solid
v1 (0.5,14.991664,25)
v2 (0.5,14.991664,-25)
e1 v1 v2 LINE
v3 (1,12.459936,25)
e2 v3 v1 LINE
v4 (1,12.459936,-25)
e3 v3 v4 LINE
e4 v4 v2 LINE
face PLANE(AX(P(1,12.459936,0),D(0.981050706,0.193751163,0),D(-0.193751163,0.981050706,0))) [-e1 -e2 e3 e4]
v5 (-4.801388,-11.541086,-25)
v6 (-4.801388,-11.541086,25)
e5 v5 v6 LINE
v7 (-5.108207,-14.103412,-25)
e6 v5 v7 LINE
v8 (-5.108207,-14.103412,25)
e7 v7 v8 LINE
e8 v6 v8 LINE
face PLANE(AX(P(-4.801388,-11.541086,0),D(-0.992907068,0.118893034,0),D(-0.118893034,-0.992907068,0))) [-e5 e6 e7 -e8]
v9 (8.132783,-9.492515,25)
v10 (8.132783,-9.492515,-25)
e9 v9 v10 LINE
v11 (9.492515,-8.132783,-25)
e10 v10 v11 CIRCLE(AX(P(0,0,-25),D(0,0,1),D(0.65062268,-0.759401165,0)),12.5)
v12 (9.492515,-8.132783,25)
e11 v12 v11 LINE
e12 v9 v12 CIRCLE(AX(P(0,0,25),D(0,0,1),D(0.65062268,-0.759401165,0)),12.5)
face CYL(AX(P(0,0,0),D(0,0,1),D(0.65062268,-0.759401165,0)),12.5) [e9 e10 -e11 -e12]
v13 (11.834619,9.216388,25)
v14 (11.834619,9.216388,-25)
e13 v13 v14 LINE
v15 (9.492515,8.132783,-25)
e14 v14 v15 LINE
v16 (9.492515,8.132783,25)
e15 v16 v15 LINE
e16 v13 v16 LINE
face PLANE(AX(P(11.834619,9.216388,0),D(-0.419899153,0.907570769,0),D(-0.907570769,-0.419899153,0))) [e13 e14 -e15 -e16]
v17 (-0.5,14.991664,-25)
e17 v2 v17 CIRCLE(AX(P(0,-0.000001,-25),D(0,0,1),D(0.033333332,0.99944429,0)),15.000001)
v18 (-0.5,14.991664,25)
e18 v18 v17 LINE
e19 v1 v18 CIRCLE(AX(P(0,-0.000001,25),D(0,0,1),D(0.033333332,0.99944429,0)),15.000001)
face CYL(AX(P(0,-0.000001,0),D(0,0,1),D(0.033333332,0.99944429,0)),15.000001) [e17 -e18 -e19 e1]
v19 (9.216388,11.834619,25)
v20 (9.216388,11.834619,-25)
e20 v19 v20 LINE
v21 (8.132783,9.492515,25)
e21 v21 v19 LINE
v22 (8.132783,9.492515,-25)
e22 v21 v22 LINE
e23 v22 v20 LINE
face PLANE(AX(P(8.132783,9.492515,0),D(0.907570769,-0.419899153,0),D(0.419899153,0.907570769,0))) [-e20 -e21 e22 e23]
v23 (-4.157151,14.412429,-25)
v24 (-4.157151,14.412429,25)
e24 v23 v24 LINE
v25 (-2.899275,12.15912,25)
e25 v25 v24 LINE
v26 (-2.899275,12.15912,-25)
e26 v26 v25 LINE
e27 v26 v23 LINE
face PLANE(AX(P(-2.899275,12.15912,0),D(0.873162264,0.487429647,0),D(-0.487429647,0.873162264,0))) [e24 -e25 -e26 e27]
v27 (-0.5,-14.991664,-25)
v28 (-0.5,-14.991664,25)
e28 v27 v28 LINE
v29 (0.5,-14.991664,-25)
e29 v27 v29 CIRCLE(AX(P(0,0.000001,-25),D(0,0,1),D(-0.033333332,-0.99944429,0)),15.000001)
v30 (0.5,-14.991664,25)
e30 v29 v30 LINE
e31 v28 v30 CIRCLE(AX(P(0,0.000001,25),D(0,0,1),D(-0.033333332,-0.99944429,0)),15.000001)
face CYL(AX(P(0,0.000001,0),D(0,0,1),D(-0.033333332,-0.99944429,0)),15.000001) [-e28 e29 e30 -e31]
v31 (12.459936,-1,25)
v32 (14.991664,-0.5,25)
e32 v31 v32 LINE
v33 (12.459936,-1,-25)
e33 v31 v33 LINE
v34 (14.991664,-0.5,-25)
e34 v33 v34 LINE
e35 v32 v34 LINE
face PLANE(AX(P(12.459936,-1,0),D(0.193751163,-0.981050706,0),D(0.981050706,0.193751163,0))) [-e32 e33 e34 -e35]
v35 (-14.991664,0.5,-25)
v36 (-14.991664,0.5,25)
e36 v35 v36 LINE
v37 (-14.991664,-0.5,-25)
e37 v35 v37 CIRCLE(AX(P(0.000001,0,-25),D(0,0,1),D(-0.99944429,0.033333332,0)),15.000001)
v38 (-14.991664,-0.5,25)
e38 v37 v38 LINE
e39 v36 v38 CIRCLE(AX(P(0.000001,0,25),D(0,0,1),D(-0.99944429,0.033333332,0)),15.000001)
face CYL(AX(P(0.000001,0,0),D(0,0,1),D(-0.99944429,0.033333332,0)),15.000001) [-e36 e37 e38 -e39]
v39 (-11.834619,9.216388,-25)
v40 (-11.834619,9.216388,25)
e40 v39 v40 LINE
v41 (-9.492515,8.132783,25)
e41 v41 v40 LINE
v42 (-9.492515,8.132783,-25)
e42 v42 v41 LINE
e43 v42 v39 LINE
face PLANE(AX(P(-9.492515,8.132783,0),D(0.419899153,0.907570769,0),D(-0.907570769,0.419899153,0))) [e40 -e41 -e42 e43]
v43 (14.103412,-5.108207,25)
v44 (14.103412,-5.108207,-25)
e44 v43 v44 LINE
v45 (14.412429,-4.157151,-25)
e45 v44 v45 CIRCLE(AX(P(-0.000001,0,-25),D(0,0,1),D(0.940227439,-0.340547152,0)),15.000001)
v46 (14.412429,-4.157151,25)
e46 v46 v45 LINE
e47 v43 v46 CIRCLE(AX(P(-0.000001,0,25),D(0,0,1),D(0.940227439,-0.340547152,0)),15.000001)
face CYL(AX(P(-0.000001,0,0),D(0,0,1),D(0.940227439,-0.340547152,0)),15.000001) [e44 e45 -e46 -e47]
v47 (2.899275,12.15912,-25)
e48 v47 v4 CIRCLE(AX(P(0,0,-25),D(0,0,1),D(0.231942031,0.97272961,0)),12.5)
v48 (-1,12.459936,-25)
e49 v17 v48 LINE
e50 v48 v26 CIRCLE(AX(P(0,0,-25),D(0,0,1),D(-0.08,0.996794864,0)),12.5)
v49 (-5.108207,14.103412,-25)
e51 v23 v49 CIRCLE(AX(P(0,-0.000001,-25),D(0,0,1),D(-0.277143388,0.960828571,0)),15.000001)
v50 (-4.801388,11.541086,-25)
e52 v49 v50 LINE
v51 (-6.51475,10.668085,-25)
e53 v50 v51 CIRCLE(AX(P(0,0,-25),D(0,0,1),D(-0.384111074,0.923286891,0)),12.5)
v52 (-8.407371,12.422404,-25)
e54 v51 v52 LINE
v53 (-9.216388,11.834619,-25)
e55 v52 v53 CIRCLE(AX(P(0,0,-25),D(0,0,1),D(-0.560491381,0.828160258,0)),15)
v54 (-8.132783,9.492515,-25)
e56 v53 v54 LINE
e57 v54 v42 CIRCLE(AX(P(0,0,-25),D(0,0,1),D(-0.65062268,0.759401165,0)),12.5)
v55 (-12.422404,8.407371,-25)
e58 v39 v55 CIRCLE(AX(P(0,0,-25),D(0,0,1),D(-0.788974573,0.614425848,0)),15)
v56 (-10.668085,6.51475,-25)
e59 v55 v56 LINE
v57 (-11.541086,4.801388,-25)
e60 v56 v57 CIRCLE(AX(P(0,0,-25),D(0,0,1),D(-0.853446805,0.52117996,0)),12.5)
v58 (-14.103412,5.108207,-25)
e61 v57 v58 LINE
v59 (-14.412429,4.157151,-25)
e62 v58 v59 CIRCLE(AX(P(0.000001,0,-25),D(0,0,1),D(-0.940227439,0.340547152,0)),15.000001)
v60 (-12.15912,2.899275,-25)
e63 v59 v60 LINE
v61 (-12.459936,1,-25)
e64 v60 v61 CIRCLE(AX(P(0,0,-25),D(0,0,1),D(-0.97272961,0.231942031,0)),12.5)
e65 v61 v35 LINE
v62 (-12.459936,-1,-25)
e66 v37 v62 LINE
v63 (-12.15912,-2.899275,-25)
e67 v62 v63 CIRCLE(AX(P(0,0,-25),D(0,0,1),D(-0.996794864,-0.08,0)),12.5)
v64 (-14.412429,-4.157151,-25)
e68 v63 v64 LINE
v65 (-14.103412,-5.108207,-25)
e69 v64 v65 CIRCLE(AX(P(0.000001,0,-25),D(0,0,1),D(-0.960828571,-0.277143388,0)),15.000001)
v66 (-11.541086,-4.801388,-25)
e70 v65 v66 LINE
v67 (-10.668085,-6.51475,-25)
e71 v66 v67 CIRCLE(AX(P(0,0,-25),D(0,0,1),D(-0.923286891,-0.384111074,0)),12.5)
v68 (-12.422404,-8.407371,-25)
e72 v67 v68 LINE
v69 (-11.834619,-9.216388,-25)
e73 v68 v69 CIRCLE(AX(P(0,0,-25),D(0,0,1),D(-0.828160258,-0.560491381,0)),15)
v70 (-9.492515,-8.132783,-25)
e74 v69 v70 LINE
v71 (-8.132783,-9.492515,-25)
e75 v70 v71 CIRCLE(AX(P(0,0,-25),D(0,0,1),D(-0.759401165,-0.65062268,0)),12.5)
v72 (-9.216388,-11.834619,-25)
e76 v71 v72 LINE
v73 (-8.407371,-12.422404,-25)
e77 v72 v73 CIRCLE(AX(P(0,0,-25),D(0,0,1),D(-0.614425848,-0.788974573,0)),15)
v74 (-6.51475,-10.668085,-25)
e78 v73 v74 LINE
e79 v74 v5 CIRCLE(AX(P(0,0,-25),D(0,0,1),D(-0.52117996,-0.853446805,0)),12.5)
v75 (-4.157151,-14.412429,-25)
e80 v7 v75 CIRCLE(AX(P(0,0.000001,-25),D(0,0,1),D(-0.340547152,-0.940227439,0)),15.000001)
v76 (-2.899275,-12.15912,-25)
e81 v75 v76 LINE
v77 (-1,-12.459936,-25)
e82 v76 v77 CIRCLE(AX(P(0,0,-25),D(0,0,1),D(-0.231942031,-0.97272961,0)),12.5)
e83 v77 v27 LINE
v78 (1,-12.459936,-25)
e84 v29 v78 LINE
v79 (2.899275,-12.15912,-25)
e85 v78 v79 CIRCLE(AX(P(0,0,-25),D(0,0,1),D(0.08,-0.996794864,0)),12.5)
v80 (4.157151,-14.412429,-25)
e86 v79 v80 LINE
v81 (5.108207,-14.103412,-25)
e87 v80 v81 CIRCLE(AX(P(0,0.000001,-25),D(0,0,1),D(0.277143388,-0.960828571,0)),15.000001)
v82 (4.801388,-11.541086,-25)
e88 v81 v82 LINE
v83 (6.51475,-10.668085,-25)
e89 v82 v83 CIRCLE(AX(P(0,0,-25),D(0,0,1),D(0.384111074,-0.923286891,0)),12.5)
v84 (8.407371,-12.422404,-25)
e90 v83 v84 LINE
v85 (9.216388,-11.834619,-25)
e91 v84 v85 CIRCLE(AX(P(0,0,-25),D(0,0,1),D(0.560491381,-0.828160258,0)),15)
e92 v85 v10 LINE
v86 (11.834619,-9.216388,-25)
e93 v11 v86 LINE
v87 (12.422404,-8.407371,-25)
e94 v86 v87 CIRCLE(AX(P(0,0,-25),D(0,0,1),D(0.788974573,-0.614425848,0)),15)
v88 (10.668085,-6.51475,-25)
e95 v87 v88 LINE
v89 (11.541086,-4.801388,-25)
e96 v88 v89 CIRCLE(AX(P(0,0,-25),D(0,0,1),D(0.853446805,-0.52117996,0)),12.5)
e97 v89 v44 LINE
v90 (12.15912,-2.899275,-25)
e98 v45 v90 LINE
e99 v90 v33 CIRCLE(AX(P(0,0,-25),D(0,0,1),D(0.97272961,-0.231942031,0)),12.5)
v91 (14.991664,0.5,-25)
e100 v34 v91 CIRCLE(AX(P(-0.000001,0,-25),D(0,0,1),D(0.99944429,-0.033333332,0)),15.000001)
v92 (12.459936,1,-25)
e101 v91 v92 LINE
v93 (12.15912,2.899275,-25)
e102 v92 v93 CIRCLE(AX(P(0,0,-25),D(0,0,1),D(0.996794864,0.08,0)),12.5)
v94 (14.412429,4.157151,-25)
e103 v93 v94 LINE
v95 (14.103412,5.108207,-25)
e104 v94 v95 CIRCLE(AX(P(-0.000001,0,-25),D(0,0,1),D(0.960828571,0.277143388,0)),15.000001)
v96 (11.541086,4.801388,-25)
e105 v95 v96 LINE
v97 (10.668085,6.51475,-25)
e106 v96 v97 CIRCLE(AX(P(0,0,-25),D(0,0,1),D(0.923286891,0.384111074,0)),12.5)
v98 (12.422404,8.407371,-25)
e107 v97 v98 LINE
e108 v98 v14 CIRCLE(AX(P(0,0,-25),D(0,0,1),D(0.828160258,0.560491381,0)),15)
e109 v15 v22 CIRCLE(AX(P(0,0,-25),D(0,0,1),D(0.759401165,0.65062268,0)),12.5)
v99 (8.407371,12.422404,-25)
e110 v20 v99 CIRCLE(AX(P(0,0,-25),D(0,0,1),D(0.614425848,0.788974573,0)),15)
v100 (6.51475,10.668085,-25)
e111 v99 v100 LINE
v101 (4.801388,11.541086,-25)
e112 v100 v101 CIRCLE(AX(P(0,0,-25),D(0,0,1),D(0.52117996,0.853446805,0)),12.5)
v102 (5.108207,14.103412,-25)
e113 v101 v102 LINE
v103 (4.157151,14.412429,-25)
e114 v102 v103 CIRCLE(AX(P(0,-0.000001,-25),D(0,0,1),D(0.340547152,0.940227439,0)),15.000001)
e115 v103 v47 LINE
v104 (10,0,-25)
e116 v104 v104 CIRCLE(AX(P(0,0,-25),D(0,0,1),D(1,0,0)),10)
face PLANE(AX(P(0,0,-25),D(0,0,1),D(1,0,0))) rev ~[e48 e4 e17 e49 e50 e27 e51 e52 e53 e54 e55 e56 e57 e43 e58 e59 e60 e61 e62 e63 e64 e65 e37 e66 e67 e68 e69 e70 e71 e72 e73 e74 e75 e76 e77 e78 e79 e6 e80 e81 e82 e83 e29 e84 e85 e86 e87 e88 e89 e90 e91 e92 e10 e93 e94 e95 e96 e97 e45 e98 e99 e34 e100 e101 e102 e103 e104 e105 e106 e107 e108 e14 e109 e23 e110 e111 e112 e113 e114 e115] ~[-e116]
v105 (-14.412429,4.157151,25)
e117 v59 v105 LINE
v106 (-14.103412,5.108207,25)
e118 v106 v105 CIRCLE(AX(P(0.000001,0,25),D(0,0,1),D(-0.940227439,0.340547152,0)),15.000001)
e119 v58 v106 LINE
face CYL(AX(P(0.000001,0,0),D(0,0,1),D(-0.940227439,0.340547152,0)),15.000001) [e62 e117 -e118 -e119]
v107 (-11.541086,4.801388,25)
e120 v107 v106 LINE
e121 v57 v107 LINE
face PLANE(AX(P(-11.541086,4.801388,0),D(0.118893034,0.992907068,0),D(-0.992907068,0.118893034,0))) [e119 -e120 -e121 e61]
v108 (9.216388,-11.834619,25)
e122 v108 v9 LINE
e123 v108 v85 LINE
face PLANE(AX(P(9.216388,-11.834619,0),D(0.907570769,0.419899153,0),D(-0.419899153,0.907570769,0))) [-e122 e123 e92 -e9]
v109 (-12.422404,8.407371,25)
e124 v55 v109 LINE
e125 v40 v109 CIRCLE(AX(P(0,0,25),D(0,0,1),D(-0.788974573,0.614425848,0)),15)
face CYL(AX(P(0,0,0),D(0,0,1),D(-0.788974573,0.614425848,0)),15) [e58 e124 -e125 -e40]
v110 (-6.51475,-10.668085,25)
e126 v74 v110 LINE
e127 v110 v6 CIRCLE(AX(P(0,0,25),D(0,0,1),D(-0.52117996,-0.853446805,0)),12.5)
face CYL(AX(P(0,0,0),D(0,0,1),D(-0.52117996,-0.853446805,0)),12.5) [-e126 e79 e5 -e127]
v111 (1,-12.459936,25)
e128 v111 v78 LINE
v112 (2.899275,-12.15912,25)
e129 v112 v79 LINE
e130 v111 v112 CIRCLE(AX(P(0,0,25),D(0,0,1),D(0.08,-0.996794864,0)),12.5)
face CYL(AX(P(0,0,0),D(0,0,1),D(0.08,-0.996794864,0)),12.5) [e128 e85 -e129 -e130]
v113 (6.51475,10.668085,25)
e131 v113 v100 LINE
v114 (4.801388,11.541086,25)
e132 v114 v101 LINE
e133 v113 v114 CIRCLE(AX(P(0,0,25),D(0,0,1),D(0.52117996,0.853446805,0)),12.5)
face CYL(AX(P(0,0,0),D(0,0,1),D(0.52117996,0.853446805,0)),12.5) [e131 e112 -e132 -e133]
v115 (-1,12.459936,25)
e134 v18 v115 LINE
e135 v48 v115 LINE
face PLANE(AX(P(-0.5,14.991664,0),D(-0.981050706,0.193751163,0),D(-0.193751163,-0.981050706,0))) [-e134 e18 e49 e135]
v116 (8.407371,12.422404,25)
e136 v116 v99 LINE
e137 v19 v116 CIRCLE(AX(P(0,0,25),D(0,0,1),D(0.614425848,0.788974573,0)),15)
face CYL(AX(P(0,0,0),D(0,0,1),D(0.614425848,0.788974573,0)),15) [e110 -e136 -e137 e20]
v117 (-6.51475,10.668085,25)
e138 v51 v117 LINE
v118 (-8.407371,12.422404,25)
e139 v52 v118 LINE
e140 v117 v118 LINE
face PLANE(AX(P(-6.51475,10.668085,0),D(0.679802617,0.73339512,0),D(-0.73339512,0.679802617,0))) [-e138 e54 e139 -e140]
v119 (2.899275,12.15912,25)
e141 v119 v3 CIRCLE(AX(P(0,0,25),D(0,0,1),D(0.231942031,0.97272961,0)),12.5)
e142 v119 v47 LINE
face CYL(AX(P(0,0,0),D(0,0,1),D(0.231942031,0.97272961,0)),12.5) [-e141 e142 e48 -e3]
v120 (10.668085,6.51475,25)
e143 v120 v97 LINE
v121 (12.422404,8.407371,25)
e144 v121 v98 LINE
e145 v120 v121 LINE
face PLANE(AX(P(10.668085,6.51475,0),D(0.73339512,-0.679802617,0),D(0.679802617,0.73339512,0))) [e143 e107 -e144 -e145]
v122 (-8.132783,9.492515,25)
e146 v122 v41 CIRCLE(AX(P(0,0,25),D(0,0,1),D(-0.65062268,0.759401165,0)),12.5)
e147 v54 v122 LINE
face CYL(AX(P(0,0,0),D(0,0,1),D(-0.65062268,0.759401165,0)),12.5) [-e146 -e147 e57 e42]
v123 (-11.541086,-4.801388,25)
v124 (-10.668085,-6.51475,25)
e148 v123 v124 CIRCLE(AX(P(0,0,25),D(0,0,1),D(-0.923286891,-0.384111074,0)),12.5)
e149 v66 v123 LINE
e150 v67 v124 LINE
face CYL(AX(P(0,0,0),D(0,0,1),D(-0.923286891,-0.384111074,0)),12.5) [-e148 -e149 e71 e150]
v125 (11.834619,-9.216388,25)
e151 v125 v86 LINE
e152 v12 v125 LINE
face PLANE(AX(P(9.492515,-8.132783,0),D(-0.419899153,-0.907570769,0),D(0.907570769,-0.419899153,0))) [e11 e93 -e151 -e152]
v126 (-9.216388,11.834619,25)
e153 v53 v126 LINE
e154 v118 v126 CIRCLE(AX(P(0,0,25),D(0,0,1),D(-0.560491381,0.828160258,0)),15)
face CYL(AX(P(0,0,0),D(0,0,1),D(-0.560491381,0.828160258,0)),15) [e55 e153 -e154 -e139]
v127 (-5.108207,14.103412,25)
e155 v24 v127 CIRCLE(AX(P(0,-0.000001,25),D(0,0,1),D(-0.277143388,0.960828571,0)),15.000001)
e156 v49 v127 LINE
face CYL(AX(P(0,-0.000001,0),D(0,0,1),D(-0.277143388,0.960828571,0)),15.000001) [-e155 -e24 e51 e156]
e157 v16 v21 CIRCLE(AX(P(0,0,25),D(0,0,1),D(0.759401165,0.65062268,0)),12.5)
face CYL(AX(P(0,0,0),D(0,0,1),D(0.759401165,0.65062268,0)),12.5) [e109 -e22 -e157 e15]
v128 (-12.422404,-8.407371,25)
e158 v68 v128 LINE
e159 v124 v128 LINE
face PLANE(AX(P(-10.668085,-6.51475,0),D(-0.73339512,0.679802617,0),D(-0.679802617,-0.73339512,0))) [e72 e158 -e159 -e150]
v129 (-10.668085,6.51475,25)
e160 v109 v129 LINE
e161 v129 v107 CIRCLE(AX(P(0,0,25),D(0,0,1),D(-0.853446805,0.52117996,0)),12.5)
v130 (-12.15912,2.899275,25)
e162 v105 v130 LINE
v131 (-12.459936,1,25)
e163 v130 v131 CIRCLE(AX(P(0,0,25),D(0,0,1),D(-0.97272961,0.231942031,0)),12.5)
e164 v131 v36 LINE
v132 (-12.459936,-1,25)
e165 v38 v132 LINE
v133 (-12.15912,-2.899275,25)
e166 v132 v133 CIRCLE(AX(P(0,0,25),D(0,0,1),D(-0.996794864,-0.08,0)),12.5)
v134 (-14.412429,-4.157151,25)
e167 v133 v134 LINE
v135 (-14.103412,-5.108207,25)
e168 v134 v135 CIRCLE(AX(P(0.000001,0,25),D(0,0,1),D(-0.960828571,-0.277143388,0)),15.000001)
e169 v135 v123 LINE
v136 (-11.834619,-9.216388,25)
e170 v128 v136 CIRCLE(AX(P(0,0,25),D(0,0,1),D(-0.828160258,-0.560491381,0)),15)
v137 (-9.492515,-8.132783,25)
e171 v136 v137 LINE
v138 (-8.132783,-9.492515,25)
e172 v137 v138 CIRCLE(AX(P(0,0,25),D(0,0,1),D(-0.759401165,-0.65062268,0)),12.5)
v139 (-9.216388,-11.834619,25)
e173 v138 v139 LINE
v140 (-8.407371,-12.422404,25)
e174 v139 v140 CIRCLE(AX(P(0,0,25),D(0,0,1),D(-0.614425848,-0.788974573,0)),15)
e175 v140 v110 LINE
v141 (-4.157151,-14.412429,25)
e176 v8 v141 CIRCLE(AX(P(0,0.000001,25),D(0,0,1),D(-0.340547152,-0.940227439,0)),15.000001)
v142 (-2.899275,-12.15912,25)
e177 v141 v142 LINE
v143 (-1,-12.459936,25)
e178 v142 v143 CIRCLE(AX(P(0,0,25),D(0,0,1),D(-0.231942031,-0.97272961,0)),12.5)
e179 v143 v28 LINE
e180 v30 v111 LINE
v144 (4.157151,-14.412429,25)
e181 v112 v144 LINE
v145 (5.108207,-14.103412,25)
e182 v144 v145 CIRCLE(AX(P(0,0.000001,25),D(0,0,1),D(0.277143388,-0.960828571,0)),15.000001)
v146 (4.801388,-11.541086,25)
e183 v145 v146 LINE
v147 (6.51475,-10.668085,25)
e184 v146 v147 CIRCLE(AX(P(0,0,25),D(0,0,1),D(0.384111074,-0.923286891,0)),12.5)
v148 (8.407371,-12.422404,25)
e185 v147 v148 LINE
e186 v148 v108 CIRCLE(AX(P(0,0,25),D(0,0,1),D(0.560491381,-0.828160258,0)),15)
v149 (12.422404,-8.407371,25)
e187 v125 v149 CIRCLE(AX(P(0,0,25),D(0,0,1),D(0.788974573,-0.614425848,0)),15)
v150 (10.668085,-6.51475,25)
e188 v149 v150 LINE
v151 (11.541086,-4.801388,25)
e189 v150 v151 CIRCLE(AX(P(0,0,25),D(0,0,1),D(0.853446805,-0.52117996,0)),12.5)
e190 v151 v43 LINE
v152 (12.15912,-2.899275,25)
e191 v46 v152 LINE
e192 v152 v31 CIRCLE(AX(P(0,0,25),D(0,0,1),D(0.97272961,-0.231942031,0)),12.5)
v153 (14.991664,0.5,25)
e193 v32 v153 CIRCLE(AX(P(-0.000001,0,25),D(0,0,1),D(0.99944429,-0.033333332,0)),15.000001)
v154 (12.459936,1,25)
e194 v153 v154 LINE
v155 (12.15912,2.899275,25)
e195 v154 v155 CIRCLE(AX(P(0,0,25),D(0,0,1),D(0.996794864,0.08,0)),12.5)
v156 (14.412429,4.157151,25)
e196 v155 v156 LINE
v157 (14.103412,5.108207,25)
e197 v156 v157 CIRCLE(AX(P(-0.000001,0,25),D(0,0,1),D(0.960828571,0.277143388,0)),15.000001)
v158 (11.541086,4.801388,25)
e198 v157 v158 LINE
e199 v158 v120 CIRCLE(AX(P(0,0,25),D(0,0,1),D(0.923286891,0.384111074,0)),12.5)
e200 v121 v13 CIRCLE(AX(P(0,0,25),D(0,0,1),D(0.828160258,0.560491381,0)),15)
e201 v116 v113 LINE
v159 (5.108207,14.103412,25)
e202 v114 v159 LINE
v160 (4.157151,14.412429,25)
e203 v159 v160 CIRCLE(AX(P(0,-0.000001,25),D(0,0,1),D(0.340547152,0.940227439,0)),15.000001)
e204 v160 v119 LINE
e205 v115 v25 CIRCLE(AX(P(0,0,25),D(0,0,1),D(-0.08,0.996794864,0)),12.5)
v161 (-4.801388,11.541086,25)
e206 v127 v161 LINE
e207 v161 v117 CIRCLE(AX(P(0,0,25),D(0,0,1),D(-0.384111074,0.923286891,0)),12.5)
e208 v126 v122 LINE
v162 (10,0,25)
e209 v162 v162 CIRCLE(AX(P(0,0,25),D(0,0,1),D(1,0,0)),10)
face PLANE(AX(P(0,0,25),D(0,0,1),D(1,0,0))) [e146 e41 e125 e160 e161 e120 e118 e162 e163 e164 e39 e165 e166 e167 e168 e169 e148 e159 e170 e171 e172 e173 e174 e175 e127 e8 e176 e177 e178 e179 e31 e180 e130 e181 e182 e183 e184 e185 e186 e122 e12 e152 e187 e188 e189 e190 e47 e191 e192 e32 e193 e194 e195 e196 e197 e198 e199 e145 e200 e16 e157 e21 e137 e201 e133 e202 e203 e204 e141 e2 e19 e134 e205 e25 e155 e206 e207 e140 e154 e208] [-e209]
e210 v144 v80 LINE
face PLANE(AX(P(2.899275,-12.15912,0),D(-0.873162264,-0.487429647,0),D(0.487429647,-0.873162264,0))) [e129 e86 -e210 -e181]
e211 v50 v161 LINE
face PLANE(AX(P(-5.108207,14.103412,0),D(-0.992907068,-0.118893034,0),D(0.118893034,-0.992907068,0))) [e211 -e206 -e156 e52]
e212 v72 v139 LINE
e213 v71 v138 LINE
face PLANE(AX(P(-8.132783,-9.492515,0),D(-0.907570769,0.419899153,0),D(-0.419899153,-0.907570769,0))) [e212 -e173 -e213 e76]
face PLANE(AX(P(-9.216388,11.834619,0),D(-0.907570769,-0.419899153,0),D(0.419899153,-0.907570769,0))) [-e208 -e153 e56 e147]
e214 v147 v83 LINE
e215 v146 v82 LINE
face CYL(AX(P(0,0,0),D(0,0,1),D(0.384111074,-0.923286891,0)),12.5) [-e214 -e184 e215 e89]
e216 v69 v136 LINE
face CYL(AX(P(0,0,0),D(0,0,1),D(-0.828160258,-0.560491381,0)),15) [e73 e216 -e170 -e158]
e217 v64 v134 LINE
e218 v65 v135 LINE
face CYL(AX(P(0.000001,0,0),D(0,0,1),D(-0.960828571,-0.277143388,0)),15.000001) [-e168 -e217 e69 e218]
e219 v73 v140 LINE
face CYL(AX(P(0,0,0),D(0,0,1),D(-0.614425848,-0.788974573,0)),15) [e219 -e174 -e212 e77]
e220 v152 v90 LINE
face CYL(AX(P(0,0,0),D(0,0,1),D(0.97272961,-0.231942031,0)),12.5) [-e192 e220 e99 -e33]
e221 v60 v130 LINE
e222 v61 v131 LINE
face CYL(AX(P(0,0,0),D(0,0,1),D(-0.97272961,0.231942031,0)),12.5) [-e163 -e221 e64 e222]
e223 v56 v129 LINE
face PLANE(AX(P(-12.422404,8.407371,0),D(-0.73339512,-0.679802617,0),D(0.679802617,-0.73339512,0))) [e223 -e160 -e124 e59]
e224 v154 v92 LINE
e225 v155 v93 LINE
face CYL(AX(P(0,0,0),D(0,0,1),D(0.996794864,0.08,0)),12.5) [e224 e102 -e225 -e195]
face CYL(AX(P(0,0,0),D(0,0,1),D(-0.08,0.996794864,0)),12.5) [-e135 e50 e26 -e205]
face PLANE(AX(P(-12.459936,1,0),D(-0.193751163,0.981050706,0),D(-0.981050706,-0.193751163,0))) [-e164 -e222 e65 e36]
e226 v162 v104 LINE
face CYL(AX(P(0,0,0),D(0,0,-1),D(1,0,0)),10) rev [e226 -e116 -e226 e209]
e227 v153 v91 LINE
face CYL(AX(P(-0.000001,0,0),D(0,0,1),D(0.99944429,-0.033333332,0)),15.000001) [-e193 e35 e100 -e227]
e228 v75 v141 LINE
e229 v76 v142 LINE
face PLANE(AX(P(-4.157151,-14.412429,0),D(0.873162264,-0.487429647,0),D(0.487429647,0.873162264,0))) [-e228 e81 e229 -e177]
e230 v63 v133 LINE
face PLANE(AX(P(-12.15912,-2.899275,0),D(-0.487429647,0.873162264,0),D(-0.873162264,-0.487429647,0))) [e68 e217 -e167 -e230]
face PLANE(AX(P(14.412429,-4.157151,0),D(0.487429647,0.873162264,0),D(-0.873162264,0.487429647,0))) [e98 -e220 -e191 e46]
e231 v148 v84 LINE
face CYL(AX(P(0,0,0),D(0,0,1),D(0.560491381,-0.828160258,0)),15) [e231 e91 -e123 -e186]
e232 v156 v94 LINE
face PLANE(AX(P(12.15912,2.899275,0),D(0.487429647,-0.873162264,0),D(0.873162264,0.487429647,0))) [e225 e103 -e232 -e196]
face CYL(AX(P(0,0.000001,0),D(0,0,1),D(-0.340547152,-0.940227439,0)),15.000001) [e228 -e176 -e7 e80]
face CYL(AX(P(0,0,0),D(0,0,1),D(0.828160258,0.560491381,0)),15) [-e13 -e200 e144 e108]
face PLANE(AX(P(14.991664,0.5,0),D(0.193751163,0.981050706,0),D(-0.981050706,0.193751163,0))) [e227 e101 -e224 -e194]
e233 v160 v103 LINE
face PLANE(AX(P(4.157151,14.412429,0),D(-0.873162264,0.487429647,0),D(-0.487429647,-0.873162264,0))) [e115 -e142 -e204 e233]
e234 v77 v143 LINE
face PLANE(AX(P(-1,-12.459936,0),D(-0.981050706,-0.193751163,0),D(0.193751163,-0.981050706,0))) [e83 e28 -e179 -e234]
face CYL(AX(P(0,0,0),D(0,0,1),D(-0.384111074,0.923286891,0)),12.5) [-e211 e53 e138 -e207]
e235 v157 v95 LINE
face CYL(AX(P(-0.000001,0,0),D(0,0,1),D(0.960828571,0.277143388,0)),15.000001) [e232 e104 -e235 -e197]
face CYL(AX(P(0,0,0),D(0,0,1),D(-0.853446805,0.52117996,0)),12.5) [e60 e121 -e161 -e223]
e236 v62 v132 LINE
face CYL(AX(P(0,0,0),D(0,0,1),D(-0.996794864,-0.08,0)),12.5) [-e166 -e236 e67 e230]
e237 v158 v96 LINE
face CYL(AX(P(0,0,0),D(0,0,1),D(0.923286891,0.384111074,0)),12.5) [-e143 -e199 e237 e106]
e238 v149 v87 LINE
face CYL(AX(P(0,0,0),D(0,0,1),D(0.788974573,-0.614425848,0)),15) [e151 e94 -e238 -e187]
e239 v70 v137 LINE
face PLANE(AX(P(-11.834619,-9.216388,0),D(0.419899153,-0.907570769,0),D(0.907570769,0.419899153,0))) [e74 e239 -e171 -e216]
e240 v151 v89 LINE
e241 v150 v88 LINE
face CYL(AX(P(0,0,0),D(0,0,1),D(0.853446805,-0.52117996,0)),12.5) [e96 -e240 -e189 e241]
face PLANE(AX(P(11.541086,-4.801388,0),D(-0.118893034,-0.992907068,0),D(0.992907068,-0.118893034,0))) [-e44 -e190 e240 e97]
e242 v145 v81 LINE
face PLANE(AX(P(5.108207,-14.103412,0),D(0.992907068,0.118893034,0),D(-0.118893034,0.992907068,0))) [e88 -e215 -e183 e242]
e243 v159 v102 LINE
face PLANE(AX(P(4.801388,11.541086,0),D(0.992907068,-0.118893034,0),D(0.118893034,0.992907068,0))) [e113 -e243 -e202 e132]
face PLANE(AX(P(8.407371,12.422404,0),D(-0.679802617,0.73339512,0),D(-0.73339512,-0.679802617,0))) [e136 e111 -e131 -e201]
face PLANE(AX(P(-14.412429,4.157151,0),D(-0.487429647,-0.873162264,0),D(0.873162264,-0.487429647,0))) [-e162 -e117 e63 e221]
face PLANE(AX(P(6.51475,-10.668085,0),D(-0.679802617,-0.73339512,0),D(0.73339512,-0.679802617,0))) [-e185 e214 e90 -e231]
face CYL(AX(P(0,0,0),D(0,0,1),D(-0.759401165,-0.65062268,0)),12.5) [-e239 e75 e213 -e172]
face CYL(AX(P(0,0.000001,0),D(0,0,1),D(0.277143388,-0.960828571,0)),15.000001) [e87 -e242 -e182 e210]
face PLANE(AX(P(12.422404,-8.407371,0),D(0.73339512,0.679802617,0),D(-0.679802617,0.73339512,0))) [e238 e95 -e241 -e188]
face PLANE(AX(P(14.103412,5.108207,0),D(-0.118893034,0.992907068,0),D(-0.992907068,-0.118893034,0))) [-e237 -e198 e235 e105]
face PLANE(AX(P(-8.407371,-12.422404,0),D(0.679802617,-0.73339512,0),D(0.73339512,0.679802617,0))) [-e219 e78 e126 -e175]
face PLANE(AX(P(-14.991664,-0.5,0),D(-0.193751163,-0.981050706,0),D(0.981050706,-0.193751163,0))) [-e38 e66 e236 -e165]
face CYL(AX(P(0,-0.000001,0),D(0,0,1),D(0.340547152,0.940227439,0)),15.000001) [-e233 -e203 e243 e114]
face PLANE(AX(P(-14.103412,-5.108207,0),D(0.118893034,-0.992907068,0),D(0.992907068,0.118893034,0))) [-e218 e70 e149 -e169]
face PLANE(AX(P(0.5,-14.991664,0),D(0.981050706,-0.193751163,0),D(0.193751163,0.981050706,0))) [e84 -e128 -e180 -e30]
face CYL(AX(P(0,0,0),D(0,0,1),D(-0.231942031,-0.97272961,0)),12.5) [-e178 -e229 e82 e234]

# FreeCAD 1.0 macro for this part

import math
import FreeCAD as App
import Part
import Sketcher
from FreeCAD import Vector

doc = App.newDocument("Part")
params = doc.addObject("Spreadsheet::Sheet", "Params")
for row, (alias, value) in enumerate([
    ("sketch1_diameter", "20 mm"),
    ("sketch1_radius", "15.000001 mm"),
    ("sketch1_radius2", "12.5 mm"),
    ("pad1_length", "50 mm"),
], start=1):
    params.set(f"A{row}", alias)
    params.set(f"B{row}", "=" + value)
    params.setAlias(f"B{row}", alias)

body = doc.addObject("PartDesign::Body", "Body")

sketch1 = doc.addObject("Sketcher::SketchObject", "Sketch")
body.addObject(sketch1)
sketch1.AttachmentSupport = (doc.XY_Plane, [""])
sketch1.MapMode = "FlatFace"
sketch1.addGeometry([
    Part.LineSegment(Vector(-0.5, 15, 0), Vector(-1, 12.5, 0)),
    Part.ArcOfCircle(Part.Circle(Vector(0, 0, 0), Vector(0, 0, 1), 12.5), math.radians(94.59), math.radians(103.41)),
    Part.LineSegment(Vector(-2.9, 12.2, 0), Vector(-4.2, 14.4, 0)),
    Part.ArcOfCircle(Part.Circle(Vector(0, 0, 0), Vector(0, 0, 1), 15), math.radians(106.09), math.radians(109.91)),
    Part.LineSegment(Vector(-5.1, 14.1, 0), Vector(-4.8, 11.5, 0)),
    Part.ArcOfCircle(Part.Circle(Vector(0, 0, 0), Vector(0, 0, 1), 12.5), math.radians(112.59), math.radians(121.41)),
    Part.LineSegment(Vector(-6.5, 10.7, 0), Vector(-8.4, 12.4, 0)),
    Part.ArcOfCircle(Part.Circle(Vector(0, 0, 0), Vector(0, 0, 1), 15), math.radians(124.09), math.radians(127.91)),
    Part.LineSegment(Vector(-9.2, 11.8, 0), Vector(-8.1, 9.5, 0)),
    Part.ArcOfCircle(Part.Circle(Vector(0, 0, 0), Vector(0, 0, 1), 12.5), math.radians(130.59), math.radians(139.41)),
    Part.LineSegment(Vector(-9.5, 8.1, 0), Vector(-11.8, 9.2, 0)),
    Part.ArcOfCircle(Part.Circle(Vector(0, 0, 0), Vector(0, 0, 1), 15), math.radians(142.09), math.radians(145.91)),
    Part.LineSegment(Vector(-12.4, 8.4, 0), Vector(-10.7, 6.5, 0)),
    Part.ArcOfCircle(Part.Circle(Vector(0, 0, 0), Vector(0, 0, 1), 12.5), math.radians(148.59), math.radians(157.41)),
    Part.LineSegment(Vector(-11.5, 4.8, 0), Vector(-14.1, 5.1, 0)),
    Part.ArcOfCircle(Part.Circle(Vector(0, 0, 0), Vector(0, 0, 1), 15), math.radians(160.09), math.radians(163.91)),
    Part.LineSegment(Vector(-14.4, 4.2, 0), Vector(-12.2, 2.9, 0)),
    Part.ArcOfCircle(Part.Circle(Vector(0, 0, 0), Vector(0, 0, 1), 12.5), math.radians(166.59), math.radians(175.41)),
    Part.LineSegment(Vector(-12.5, 1, 0), Vector(-15, 0.5, 0)),
    Part.ArcOfCircle(Part.Circle(Vector(0, 0, 0), Vector(0, 0, 1), 15), math.radians(178.09), math.radians(181.91)),
    Part.LineSegment(Vector(-15, -0.5, 0), Vector(-12.5, -1, 0)),
    Part.ArcOfCircle(Part.Circle(Vector(0, 0, 0), Vector(0, 0, 1), 12.5), math.radians(-175.41), math.radians(-166.59)),
    Part.LineSegment(Vector(-12.2, -2.9, 0), Vector(-14.4, -4.2, 0)),
    Part.ArcOfCircle(Part.Circle(Vector(0, 0, 0), Vector(0, 0, 1), 15), math.radians(-163.91), math.radians(-160.09)),
    Part.LineSegment(Vector(-14.1, -5.1, 0), Vector(-11.5, -4.8, 0)),
    Part.ArcOfCircle(Part.Circle(Vector(0, 0, 0), Vector(0, 0, 1), 12.5), math.radians(-157.41), math.radians(-148.59)),
    Part.LineSegment(Vector(-10.7, -6.5, 0), Vector(-12.4, -8.4, 0)),
    Part.ArcOfCircle(Part.Circle(Vector(0, 0, 0), Vector(0, 0, 1), 15), math.radians(-145.91), math.radians(-142.09)),
    Part.LineSegment(Vector(-11.8, -9.2, 0), Vector(-9.5, -8.1, 0)),
    Part.ArcOfCircle(Part.Circle(Vector(0, 0, 0), Vector(0, 0, 1), 12.5), math.radians(-139.41), math.radians(-130.59)),
    Part.LineSegment(Vector(-8.1, -9.5, 0), Vector(-9.2, -11.8, 0)),
    Part.ArcOfCircle(Part.Circle(Vector(0, 0, 0), Vector(0, 0, 1), 15), math.radians(-127.91), math.radians(-124.09)),
    Part.LineSegment(Vector(-8.4, -12.4, 0), Vector(-6.5, -10.7, 0)),
    Part.ArcOfCircle(Part.Circle(Vector(0, 0, 0), Vector(0, 0, 1), 12.5), math.radians(-121.41), math.radians(-112.59)),
    Part.LineSegment(Vector(-4.8, -11.5, 0), Vector(-5.1, -14.1, 0)),
    Part.ArcOfCircle(Part.Circle(Vector(0, 0, 0), Vector(0, 0, 1), 15), math.radians(-109.91), math.radians(-106.09)),
    Part.LineSegment(Vector(-4.2, -14.4, 0), Vector(-2.9, -12.2, 0)),
    Part.ArcOfCircle(Part.Circle(Vector(0, 0, 0), Vector(0, 0, 1), 12.5), math.radians(-103.41), math.radians(-94.59)),
    Part.LineSegment(Vector(-1, -12.5, 0), Vector(-0.5, -15, 0)),
    Part.ArcOfCircle(Part.Circle(Vector(0, 0, 0), Vector(0, 0, 1), 15), math.radians(-91.91), math.radians(-88.09)),
    Part.LineSegment(Vector(0.5, -15, 0), Vector(1, -12.5, 0)),
    Part.ArcOfCircle(Part.Circle(Vector(0, 0, 0), Vector(0, 0, 1), 12.5), math.radians(-85.41), math.radians(-76.59)),
    Part.LineSegment(Vector(2.9, -12.2, 0), Vector(4.2, -14.4, 0)),
    Part.ArcOfCircle(Part.Circle(Vector(0, 0, 0), Vector(0, 0, 1), 15), math.radians(-73.91), math.radians(-70.09)),
    Part.LineSegment(Vector(5.1, -14.1, 0), Vector(4.8, -11.5, 0)),
    Part.ArcOfCircle(Part.Circle(Vector(0, 0, 0), Vector(0, 0, 1), 12.5), math.radians(-67.41), math.radians(-58.59)),
    Part.LineSegment(Vector(6.5, -10.7, 0), Vector(8.4, -12.4, 0)),
    Part.ArcOfCircle(Part.Circle(Vector(0, 0, 0), Vector(0, 0, 1), 15), math.radians(-55.91), math.radians(-52.09)),
    Part.LineSegment(Vector(9.2, -11.8, 0), Vector(8.1, -9.5, 0)),
    Part.ArcOfCircle(Part.Circle(Vector(0, 0, 0), Vector(0, 0, 1), 12.5), math.radians(-49.41), math.radians(-40.59)),
    Part.LineSegment(Vector(9.5, -8.1, 0), Vector(11.8, -9.2, 0)),
    Part.ArcOfCircle(Part.Circle(Vector(0, 0, 0), Vector(0, 0, 1), 15), math.radians(-37.91), math.radians(-34.09)),
    Part.LineSegment(Vector(12.4, -8.4, 0), Vector(10.7, -6.5, 0)),
    Part.ArcOfCircle(Part.Circle(Vector(0, 0, 0), Vector(0, 0, 1), 12.5), math.radians(-31.41), math.radians(-22.59)),
    Part.LineSegment(Vector(11.5, -4.8, 0), Vector(14.1, -5.1, 0)),
    Part.ArcOfCircle(Part.Circle(Vector(0, 0, 0), Vector(0, 0, 1), 15), math.radians(-19.91), math.radians(-16.09)),
    Part.LineSegment(Vector(14.4, -4.2, 0), Vector(12.2, -2.9, 0)),
    Part.ArcOfCircle(Part.Circle(Vector(0, 0, 0), Vector(0, 0, 1), 12.5), math.radians(-13.41), math.radians(-4.59)),
    Part.LineSegment(Vector(12.5, -1, 0), Vector(15, -0.5, 0)),
    Part.ArcOfCircle(Part.Circle(Vector(0, 0, 0), Vector(0, 0, 1), 15), math.radians(-1.91), math.radians(1.91)),
    Part.LineSegment(Vector(15, 0.5, 0), Vector(12.5, 1, 0)),
    Part.ArcOfCircle(Part.Circle(Vector(0, 0, 0), Vector(0, 0, 1), 12.5), math.radians(4.59), math.radians(13.41)),
    Part.LineSegment(Vector(12.2, 2.9, 0), Vector(14.4, 4.2, 0)),
    Part.ArcOfCircle(Part.Circle(Vector(0, 0, 0), Vector(0, 0, 1), 15), math.radians(16.09), math.radians(19.91)),
    Part.LineSegment(Vector(14.1, 5.1, 0), Vector(11.5, 4.8, 0)),
    Part.ArcOfCircle(Part.Circle(Vector(0, 0, 0), Vector(0, 0, 1), 12.5), math.radians(22.59), math.radians(31.41)),
    Part.LineSegment(Vector(10.7, 6.5, 0), Vector(12.4, 8.4, 0)),
    Part.ArcOfCircle(Part.Circle(Vector(0, 0, 0), Vector(0, 0, 1), 15), math.radians(34.09), math.radians(37.91)),
    Part.LineSegment(Vector(11.8, 9.2, 0), Vector(9.5, 8.1, 0)),
    Part.ArcOfCircle(Part.Circle(Vector(0, 0, 0), Vector(0, 0, 1), 12.5), math.radians(40.59), math.radians(49.41)),
    Part.LineSegment(Vector(8.1, 9.5, 0), Vector(9.2, 11.8, 0)),
    Part.ArcOfCircle(Part.Circle(Vector(0, 0, 0), Vector(0, 0, 1), 15), math.radians(52.09), math.radians(55.91)),
    Part.LineSegment(Vector(8.4, 12.4, 0), Vector(6.5, 10.7, 0)),
    Part.ArcOfCircle(Part.Circle(Vector(0, 0, 0), Vector(0, 0, 1), 12.5), math.radians(58.59), math.radians(67.41)),
    Part.LineSegment(Vector(4.8, 11.5, 0), Vector(5.1, 14.1, 0)),
    Part.ArcOfCircle(Part.Circle(Vector(0, 0, 0), Vector(0, 0, 1), 15), math.radians(70.09), math.radians(73.91)),
    Part.LineSegment(Vector(4.2, 14.4, 0), Vector(2.9, 12.2, 0)),
    Part.ArcOfCircle(Part.Circle(Vector(0, 0, 0), Vector(0, 0, 1), 12.5), math.radians(76.59), math.radians(85.41)),
    Part.LineSegment(Vector(1, 12.5, 0), Vector(0.5, 15, 0)),
    Part.ArcOfCircle(Part.Circle(Vector(0, 0, 0), Vector(0, 0, 1), 15), math.radians(88.09), math.radians(91.91)),
    Part.Circle(Vector(0, 0, 0), Vector(0, 0, 1), 10),
], False)
sketch1.addConstraint([
    Sketcher.Constraint("Coincident", 0, 2, 1, 1),
    Sketcher.Constraint("Coincident", 1, 2, 2, 1),
    Sketcher.Constraint("Coincident", 2, 2, 3, 1),
    Sketcher.Constraint("Coincident", 3, 2, 4, 1),
    Sketcher.Constraint("Coincident", 4, 2, 5, 1),
    Sketcher.Constraint("Coincident", 5, 2, 6, 1),
    Sketcher.Constraint("Coincident", 6, 2, 7, 1),
    Sketcher.Constraint("Coincident", 7, 2, 8, 1),
    Sketcher.Constraint("Coincident", 8, 2, 9, 1),
    Sketcher.Constraint("Coincident", 9, 2, 10, 1),
    Sketcher.Constraint("Coincident", 10, 2, 11, 1),
    Sketcher.Constraint("Coincident", 11, 2, 12, 1),
    Sketcher.Constraint("Coincident", 12, 2, 13, 1),
    Sketcher.Constraint("Coincident", 13, 2, 14, 1),
    Sketcher.Constraint("Coincident", 14, 2, 15, 1),
    Sketcher.Constraint("Coincident", 15, 2, 16, 1),
    Sketcher.Constraint("Coincident", 16, 2, 17, 1),
    Sketcher.Constraint("Coincident", 17, 2, 18, 1),
    Sketcher.Constraint("Coincident", 18, 2, 19, 1),
    Sketcher.Constraint("Coincident", 19, 2, 20, 1),
    Sketcher.Constraint("Coincident", 20, 2, 21, 1),
    Sketcher.Constraint("Coincident", 21, 2, 22, 1),
    Sketcher.Constraint("Coincident", 22, 2, 23, 1),
    Sketcher.Constraint("Coincident", 23, 2, 24, 1),
    Sketcher.Constraint("Coincident", 24, 2, 25, 1),
    Sketcher.Constraint("Coincident", 25, 2, 26, 1),
    Sketcher.Constraint("Coincident", 26, 2, 27, 1),
    Sketcher.Constraint("Coincident", 27, 2, 28, 1),
    Sketcher.Constraint("Coincident", 28, 2, 29, 1),
    Sketcher.Constraint("Coincident", 29, 2, 30, 1),
    Sketcher.Constraint("Coincident", 30, 2, 31, 1),
    Sketcher.Constraint("Coincident", 31, 2, 32, 1),
    Sketcher.Constraint("Coincident", 32, 2, 33, 1),
    Sketcher.Constraint("Coincident", 33, 2, 34, 1),
    Sketcher.Constraint("Coincident", 34, 2, 35, 1),
    Sketcher.Constraint("Coincident", 35, 2, 36, 1),
    Sketcher.Constraint("Coincident", 36, 2, 37, 1),
    Sketcher.Constraint("Coincident", 37, 2, 38, 1),
    Sketcher.Constraint("Coincident", 38, 2, 39, 1),
    Sketcher.Constraint("Coincident", 39, 2, 40, 1),
    Sketcher.Constraint("Coincident", 40, 2, 41, 1),
    Sketcher.Constraint("Coincident", 41, 2, 42, 1),
    Sketcher.Constraint("Coincident", 42, 2, 43, 1),
    Sketcher.Constraint("Coincident", 43, 2, 44, 1),
    Sketcher.Constraint("Coincident", 44, 2, 45, 1),
    Sketcher.Constraint("Coincident", 45, 2, 46, 1),
    Sketcher.Constraint("Coincident", 46, 2, 47, 1),
    Sketcher.Constraint("Coincident", 47, 2, 48, 1),
    Sketcher.Constraint("Coincident", 48, 2, 49, 1),
    Sketcher.Constraint("Coincident", 49, 2, 50, 1),
    Sketcher.Constraint("Coincident", 50, 2, 51, 1),
    Sketcher.Constraint("Coincident", 51, 2, 52, 1),
    Sketcher.Constraint("Coincident", 52, 2, 53, 1),
    Sketcher.Constraint("Coincident", 53, 2, 54, 1),
    Sketcher.Constraint("Coincident", 54, 2, 55, 1),
    Sketcher.Constraint("Coincident", 55, 2, 56, 1),
    Sketcher.Constraint("Coincident", 56, 2, 57, 1),
    Sketcher.Constraint("Coincident", 57, 2, 58, 1),
    Sketcher.Constraint("Coincident", 58, 2, 59, 1),
    Sketcher.Constraint("Coincident", 59, 2, 60, 1),
    Sketcher.Constraint("Coincident", 60, 2, 61, 1),
    Sketcher.Constraint("Coincident", 61, 2, 62, 1),
    Sketcher.Constraint("Coincident", 62, 2, 63, 1),
    Sketcher.Constraint("Coincident", 63, 2, 64, 1),
    Sketcher.Constraint("Coincident", 64, 2, 65, 1),
    Sketcher.Constraint("Coincident", 65, 2, 66, 1),
    Sketcher.Constraint("Coincident", 66, 2, 67, 1),
    Sketcher.Constraint("Coincident", 67, 2, 68, 1),
    Sketcher.Constraint("Coincident", 68, 2, 69, 1),
    Sketcher.Constraint("Coincident", 69, 2, 70, 1),
    Sketcher.Constraint("Coincident", 70, 2, 71, 1),
    Sketcher.Constraint("Coincident", 71, 2, 72, 1),
    Sketcher.Constraint("Coincident", 72, 2, 73, 1),
    Sketcher.Constraint("Coincident", 73, 2, 74, 1),
    Sketcher.Constraint("Coincident", 74, 2, 75, 1),
    Sketcher.Constraint("Coincident", 75, 2, 76, 1),
    Sketcher.Constraint("Coincident", 76, 2, 77, 1),
    Sketcher.Constraint("Coincident", 77, 2, 78, 1),
    Sketcher.Constraint("Coincident", 78, 2, 79, 1),
    Sketcher.Constraint("Coincident", 79, 2, 0, 1),
    Sketcher.Constraint("Coincident", 1, 3, -1, 1),
    Sketcher.Constraint("Coincident", 3, 3, -1, 1),
    Sketcher.Constraint("Coincident", 5, 3, -1, 1),
    Sketcher.Constraint("Coincident", 7, 3, -1, 1),
    Sketcher.Constraint("Coincident", 9, 3, -1, 1),
    Sketcher.Constraint("Coincident", 11, 3, -1, 1),
    Sketcher.Constraint("Coincident", 13, 3, -1, 1),
    Sketcher.Constraint("Coincident", 15, 3, -1, 1),
    Sketcher.Constraint("Coincident", 17, 3, -1, 1),
    Sketcher.Constraint("Coincident", 19, 3, -1, 1),
    Sketcher.Constraint("Coincident", 21, 3, -1, 1),
    Sketcher.Constraint("Coincident", 23, 3, -1, 1),
    Sketcher.Constraint("Coincident", 25, 3, -1, 1),
    Sketcher.Constraint("Coincident", 27, 3, -1, 1),
    Sketcher.Constraint("Coincident", 29, 3, -1, 1),
    Sketcher.Constraint("Coincident", 31, 3, -1, 1),
    Sketcher.Constraint("Coincident", 33, 3, -1, 1),
    Sketcher.Constraint("Coincident", 35, 3, -1, 1),
    Sketcher.Constraint("Coincident", 37, 3, -1, 1),
    Sketcher.Constraint("Coincident", 39, 3, -1, 1),
    Sketcher.Constraint("Coincident", 41, 3, -1, 1),
    Sketcher.Constraint("Coincident", 43, 3, -1, 1),
    Sketcher.Constraint("Coincident", 45, 3, -1, 1),
    Sketcher.Constraint("Coincident", 47, 3, -1, 1),
    Sketcher.Constraint("Coincident", 49, 3, -1, 1),
    Sketcher.Constraint("Coincident", 51, 3, -1, 1),
    Sketcher.Constraint("Coincident", 53, 3, -1, 1),
    Sketcher.Constraint("Coincident", 55, 3, -1, 1),
    Sketcher.Constraint("Coincident", 57, 3, -1, 1),
    Sketcher.Constraint("Coincident", 59, 3, -1, 1),
    Sketcher.Constraint("Coincident", 61, 3, -1, 1),
    Sketcher.Constraint("Coincident", 63, 3, -1, 1),
    Sketcher.Constraint("Coincident", 65, 3, -1, 1),
    Sketcher.Constraint("Coincident", 67, 3, -1, 1),
    Sketcher.Constraint("Coincident", 69, 3, -1, 1),
    Sketcher.Constraint("Coincident", 71, 3, -1, 1),
    Sketcher.Constraint("Coincident", 73, 3, -1, 1),
    Sketcher.Constraint("Coincident", 75, 3, -1, 1),
    Sketcher.Constraint("Coincident", 77, 3, -1, 1),
    Sketcher.Constraint("Coincident", 79, 3, -1, 1),
    Sketcher.Constraint("Coincident", 80, 3, -1, 1),
    Sketcher.Constraint("Equal", 1, 5),
    Sketcher.Constraint("Equal", 3, 7),
    Sketcher.Constraint("Equal", 5, 9),
    Sketcher.Constraint("Equal", 7, 11),
    Sketcher.Constraint("Equal", 9, 13),
    Sketcher.Constraint("Equal", 11, 15),
    Sketcher.Constraint("Equal", 13, 17),
    Sketcher.Constraint("Equal", 15, 19),
    Sketcher.Constraint("Equal", 17, 21),
    Sketcher.Constraint("Equal", 19, 23),
    Sketcher.Constraint("Equal", 21, 25),
    Sketcher.Constraint("Equal", 23, 27),
    Sketcher.Constraint("Equal", 25, 29),
    Sketcher.Constraint("Equal", 27, 31),
    Sketcher.Constraint("Equal", 29, 33),
    Sketcher.Constraint("Equal", 31, 35),
    Sketcher.Constraint("Equal", 33, 37),
    Sketcher.Constraint("Equal", 35, 39),
    Sketcher.Constraint("Equal", 37, 41),
    Sketcher.Constraint("Equal", 39, 43),
    Sketcher.Constraint("Equal", 41, 45),
    Sketcher.Constraint("Equal", 43, 47),
    Sketcher.Constraint("Equal", 45, 49),
    Sketcher.Constraint("Equal", 47, 51),
    Sketcher.Constraint("Equal", 49, 53),
    Sketcher.Constraint("Equal", 51, 55),
    Sketcher.Constraint("Equal", 53, 57),
    Sketcher.Constraint("Equal", 55, 59),
    Sketcher.Constraint("Equal", 57, 61),
    Sketcher.Constraint("Equal", 59, 63),
    Sketcher.Constraint("Equal", 61, 65),
    Sketcher.Constraint("Equal", 63, 67),
    Sketcher.Constraint("Equal", 65, 69),
    Sketcher.Constraint("Equal", 67, 71),
    Sketcher.Constraint("Equal", 69, 73),
    Sketcher.Constraint("Equal", 71, 75),
    Sketcher.Constraint("Equal", 73, 77),
    Sketcher.Constraint("Equal", 75, 79),
    Sketcher.Constraint("Perpendicular", 0, 20),
    Sketcher.Constraint("Perpendicular", 2, 22),
    Sketcher.Constraint("Perpendicular", 4, 24),
    Sketcher.Constraint("Perpendicular", 6, 26),
    Sketcher.Constraint("Perpendicular", 8, 28),
    Sketcher.Constraint("Perpendicular", 10, 30),
    Sketcher.Constraint("Perpendicular", 12, 32),
    Sketcher.Constraint("Perpendicular", 14, 34),
    Sketcher.Constraint("Perpendicular", 16, 36),
    Sketcher.Constraint("Perpendicular", 18, 38),
    Sketcher.Constraint("Perpendicular", 20, 40),
    Sketcher.Constraint("Perpendicular", 22, 42),
    Sketcher.Constraint("Perpendicular", 24, 44),
    Sketcher.Constraint("Perpendicular", 26, 46),
    Sketcher.Constraint("Perpendicular", 28, 48),
    Sketcher.Constraint("Perpendicular", 30, 50),
    Sketcher.Constraint("Perpendicular", 32, 52),
    Sketcher.Constraint("Perpendicular", 34, 54),
    Sketcher.Constraint("Perpendicular", 36, 56),
    Sketcher.Constraint("Perpendicular", 38, 58),
    Sketcher.Constraint("Perpendicular", 40, 60),
    Sketcher.Constraint("Perpendicular", 42, 62),
    Sketcher.Constraint("Perpendicular", 44, 64),
    Sketcher.Constraint("Perpendicular", 46, 66),
    Sketcher.Constraint("Perpendicular", 48, 68),
    Sketcher.Constraint("Perpendicular", 50, 70),
    Sketcher.Constraint("Perpendicular", 52, 72),
    Sketcher.Constraint("Perpendicular", 54, 74),
    Sketcher.Constraint("Perpendicular", 56, 76),
    Sketcher.Constraint("Perpendicular", 58, 78),
    Sketcher.Constraint("Horizontal", 38, 2, 39, 2),
    Sketcher.Constraint("Horizontal", 37, 2, 40, 2),
    Sketcher.Constraint("Horizontal", 36, 2, 41, 2),
    Sketcher.Constraint("Horizontal", 35, 2, 42, 2),
    Sketcher.Constraint("Horizontal", 34, 2, 43, 2),
    Sketcher.Constraint("Horizontal", 33, 2, 44, 2),
    Sketcher.Constraint("Horizontal", 32, 2, 45, 2),
    Sketcher.Constraint("Horizontal", 31, 2, 46, 2),
    Sketcher.Constraint("Horizontal", 30, 2, 47, 2),
    Sketcher.Constraint("Horizontal", 29, 2, 48, 2),
    Sketcher.Constraint("Horizontal", 28, 2, 49, 2),
    Sketcher.Constraint("Horizontal", 26, 2, 51, 2),
    Sketcher.Constraint("Horizontal", 24, 2, 53, 2),
    Sketcher.Constraint("Horizontal", 22, 2, 55, 2),
    Sketcher.Constraint("Horizontal", 20, 2, 57, 2),
    Sketcher.Constraint("Horizontal", 18, 2, 59, 2),
    Sketcher.Constraint("Horizontal", 16, 2, 61, 2),
    Sketcher.Constraint("Horizontal", 14, 2, 63, 2),
    Sketcher.Constraint("Horizontal", 12, 2, 65, 2),
    Sketcher.Constraint("Horizontal", 10, 2, 67, 2),
    Sketcher.Constraint("Horizontal", 8, 2, 69, 2),
    Sketcher.Constraint("Horizontal", 6, 2, 71, 2),
    Sketcher.Constraint("Horizontal", 4, 2, 73, 2),
    Sketcher.Constraint("Horizontal", 2, 2, 75, 2),
    Sketcher.Constraint("Horizontal", 0, 2, 77, 2),
    Sketcher.Constraint("Vertical", 18, 2, 19, 2),
    Sketcher.Constraint("Vertical", 16, 2, 21, 2),
    Sketcher.Constraint("Vertical", 14, 2, 23, 2),
    Sketcher.Constraint("Vertical", 12, 2, 25, 2),
    Sketcher.Constraint("Vertical", 10, 2, 27, 2),
    Sketcher.Constraint("Vertical", 8, 2, 29, 2),
    Sketcher.Constraint("Vertical", 6, 2, 31, 2),
    Sketcher.Constraint("Vertical", 4, 2, 33, 2),
    Sketcher.Constraint("Vertical", 2, 2, 35, 2),
    Sketcher.Constraint("Vertical", 0, 2, 37, 2),
    Sketcher.Constraint("Equal", 0, 2),
    Sketcher.Constraint("Equal", 2, 4),
    Sketcher.Constraint("Equal", 4, 6),
    Sketcher.Constraint("Equal", 6, 8),
    Sketcher.Constraint("Equal", 8, 10),
    Sketcher.Constraint("Equal", 10, 12),
    Sketcher.Constraint("Equal", 12, 14),
    Sketcher.Constraint("Equal", 14, 16),
    Sketcher.Constraint("Equal", 16, 18),
    Sketcher.Constraint("Diameter", 80, 20.0),
    Sketcher.Constraint("Radius", 3, 15.000001),
    Sketcher.Constraint("Radius", 1, 12.5),
    Sketcher.Constraint("DistanceX", 0, 2, -1, 1, 1.0),
    Sketcher.Constraint("DistanceY", -1, 1, 18, 2, 0.5),
    Sketcher.Constraint("DistanceY", -1, 1, 1, 2, 12.15912),
    Sketcher.Constraint("DistanceY", -1, 1, 3, 2, 14.103412),
    Sketcher.Constraint("DistanceX", 5, 2, -1, 1, 6.51475),
    Sketcher.Constraint("DistanceY", -1, 1, 7, 2, 11.834619),
])
sketch1.setExpression("Constraints[233]", "Params.sketch1_diameter")
sketch1.setExpression("Constraints[234]", "Params.sketch1_radius")
sketch1.setExpression("Constraints[235]", "Params.sketch1_radius2")
pad1 = doc.addObject("PartDesign::Pad", "Pad")
body.addObject(pad1)
pad1.Profile = sketch1
pad1.setExpression("Length", "Params.pad1_length")
pad1.Midplane = True

doc.recompute()
